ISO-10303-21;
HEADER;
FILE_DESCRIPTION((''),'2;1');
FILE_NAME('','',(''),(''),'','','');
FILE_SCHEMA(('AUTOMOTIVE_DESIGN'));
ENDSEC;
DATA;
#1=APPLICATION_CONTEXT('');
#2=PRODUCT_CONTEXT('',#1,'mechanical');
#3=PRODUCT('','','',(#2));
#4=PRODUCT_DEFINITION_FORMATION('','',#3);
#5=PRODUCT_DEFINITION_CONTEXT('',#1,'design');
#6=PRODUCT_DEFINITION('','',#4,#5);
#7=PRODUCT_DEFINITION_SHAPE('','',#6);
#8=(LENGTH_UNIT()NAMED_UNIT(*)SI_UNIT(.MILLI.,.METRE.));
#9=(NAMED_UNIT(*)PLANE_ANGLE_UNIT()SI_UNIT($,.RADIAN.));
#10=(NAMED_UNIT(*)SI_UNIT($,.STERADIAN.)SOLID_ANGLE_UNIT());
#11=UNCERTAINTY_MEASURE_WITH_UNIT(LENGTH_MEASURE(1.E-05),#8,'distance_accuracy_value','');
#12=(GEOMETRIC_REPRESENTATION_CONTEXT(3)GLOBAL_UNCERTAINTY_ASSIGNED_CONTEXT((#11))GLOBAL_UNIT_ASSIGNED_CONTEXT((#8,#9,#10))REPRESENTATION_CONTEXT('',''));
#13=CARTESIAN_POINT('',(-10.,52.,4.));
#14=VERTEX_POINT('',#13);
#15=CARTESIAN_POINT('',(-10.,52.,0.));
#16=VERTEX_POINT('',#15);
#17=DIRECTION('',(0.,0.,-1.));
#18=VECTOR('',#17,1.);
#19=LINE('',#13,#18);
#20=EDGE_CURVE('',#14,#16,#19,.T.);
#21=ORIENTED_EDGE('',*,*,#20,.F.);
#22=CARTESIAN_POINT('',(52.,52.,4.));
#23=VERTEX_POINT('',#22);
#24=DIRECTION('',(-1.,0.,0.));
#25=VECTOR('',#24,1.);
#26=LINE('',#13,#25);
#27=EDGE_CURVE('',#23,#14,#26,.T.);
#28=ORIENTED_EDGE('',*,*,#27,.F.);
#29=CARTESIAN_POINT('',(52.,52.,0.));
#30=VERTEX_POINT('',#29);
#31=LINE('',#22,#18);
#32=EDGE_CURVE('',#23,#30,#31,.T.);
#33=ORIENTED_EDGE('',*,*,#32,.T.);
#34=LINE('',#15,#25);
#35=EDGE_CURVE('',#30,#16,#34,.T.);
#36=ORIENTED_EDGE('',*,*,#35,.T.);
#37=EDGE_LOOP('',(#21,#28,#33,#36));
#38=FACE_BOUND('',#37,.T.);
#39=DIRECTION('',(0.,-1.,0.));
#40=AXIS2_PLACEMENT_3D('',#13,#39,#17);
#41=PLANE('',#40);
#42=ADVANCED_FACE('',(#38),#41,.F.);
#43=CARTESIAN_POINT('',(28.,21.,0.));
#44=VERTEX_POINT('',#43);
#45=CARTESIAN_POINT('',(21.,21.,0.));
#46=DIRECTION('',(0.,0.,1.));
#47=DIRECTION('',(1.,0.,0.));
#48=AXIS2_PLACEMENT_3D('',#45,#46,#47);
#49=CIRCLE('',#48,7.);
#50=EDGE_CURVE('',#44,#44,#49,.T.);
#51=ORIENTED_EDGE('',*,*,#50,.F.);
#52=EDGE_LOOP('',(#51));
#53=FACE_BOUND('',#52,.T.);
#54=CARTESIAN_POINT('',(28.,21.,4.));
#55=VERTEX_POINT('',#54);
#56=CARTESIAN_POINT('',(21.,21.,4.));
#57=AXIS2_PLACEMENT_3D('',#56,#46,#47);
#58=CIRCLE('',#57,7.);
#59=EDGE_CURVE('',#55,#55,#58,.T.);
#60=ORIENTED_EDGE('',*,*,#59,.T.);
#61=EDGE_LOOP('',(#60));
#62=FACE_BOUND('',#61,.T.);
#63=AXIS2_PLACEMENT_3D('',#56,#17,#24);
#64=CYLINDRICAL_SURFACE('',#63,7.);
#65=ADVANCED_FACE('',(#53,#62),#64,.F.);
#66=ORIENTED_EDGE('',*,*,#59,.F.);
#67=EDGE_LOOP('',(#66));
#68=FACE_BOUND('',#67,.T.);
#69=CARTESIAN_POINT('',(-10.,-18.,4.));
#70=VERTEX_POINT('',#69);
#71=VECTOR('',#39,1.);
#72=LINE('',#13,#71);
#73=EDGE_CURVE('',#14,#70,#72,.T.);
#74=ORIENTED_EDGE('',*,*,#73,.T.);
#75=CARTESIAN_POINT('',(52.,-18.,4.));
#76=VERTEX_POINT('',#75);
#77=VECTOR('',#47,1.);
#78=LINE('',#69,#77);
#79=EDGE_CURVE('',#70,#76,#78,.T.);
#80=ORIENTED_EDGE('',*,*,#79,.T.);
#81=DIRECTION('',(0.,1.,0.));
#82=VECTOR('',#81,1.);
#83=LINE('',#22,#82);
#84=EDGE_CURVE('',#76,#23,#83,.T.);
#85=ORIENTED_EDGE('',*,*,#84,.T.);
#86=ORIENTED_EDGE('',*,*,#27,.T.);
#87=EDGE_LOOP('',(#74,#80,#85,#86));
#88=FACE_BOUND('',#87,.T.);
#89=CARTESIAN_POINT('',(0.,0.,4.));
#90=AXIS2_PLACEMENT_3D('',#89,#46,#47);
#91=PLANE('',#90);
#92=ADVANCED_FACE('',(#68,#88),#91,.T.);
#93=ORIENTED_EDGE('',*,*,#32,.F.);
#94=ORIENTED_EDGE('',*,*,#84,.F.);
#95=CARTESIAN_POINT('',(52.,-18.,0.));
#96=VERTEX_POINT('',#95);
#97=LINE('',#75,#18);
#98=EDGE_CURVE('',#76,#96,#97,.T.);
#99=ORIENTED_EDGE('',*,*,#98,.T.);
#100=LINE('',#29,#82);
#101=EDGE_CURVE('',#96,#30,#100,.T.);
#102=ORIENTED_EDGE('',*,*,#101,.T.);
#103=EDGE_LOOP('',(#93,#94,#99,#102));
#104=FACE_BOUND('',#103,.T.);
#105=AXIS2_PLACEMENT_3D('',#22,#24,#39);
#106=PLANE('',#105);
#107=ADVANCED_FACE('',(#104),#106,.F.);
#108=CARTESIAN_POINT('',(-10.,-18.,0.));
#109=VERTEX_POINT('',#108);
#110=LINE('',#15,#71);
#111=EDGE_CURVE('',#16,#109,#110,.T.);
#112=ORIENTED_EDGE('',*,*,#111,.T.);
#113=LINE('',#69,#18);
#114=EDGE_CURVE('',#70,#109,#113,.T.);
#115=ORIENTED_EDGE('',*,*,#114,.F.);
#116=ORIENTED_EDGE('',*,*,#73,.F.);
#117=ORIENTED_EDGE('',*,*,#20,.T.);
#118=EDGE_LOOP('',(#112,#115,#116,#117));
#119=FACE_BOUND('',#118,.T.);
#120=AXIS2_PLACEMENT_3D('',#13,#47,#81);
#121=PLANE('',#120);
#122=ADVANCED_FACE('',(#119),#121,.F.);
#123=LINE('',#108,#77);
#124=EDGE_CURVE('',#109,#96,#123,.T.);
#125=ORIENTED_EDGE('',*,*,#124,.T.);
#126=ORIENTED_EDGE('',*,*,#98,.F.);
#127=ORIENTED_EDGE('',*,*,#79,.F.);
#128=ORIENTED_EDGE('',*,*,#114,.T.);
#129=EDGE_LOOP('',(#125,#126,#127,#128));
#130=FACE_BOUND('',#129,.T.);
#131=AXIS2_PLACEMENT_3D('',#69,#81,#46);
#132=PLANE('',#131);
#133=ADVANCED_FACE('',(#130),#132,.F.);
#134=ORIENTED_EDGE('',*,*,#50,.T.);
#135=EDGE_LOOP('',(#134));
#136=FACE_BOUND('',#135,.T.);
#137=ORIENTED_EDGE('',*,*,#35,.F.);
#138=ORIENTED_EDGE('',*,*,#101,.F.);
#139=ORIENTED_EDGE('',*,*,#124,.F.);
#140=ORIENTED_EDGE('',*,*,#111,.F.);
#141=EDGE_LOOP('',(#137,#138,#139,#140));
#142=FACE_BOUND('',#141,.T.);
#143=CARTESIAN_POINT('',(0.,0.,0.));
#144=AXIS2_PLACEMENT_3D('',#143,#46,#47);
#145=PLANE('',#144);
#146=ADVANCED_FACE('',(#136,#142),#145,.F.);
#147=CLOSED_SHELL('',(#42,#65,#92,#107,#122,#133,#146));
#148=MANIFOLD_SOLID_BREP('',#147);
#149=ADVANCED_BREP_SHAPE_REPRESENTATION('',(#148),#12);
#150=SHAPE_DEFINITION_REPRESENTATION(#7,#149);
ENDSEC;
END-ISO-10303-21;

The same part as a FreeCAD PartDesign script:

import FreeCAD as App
import Part
import Sketcher

V = App.Vector
Q = App.Units.Quantity


def add_polygon(sketch, points):
    """Adds a closed chain of lines whose ends are joined by coincident constraints."""
    first, n = sketch.GeometryCount, len(points)
    for a, b in zip(points, points[1:] + points[:1]):
        sketch.addGeometry(Part.LineSegment(App.Vector(*a, 0), App.Vector(*b, 0)), False)
    for i in range(n):
        sketch.addConstraint(Sketcher.Constraint("Coincident", first + i, 2, first + (i + 1) % n, 1))

doc = App.newDocument("Part")
body = doc.addObject("PartDesign::Body", "Body")

# Sketch on XY plane
sketch1 = body.newObject("Sketcher::SketchObject", "Sketch")
sketch1.AttachmentSupport = (doc.getObject("XY_Plane"), [""])
sketch1.MapMode = "FlatFace"
add_polygon(sketch1, [(-10, 52), (-10, -18), (52, -18), (52, 52)])  # lines 0-3
sketch1.addGeometry(Part.Circle(V(21, 21, 0), V(0, 0, 1), 7), False)  # 4
sketch1.addConstraint([
    Sketcher.Constraint("Vertical", 0),
    Sketcher.Constraint("Horizontal", 1),
    Sketcher.Constraint("Vertical", 2),
    Sketcher.Constraint("Horizontal", 3),
    Sketcher.Constraint("Diameter", 4, Q("14 mm")),
    Sketcher.Constraint("DistanceX", 1, 1, 1, 2, Q("62 mm")),
    Sketcher.Constraint("DistanceY", 0, 2, 0, 1, Q("70 mm")),
    Sketcher.Constraint("DistanceX", -1, 1, 4, 3, Q("21 mm")),
    Sketcher.Constraint("DistanceY", -1, 1, 4, 3, Q("21 mm")),
    Sketcher.Constraint("DistanceX", 0, 2, -1, 1, Q("10 mm")),
    Sketcher.Constraint("DistanceY", 0, 2, -1, 1, Q("18 mm")),
])
pad1 = body.newObject("PartDesign::Pad", "Pad")
pad1.Profile = sketch1
pad1.Length = 4

doc.recompute()
